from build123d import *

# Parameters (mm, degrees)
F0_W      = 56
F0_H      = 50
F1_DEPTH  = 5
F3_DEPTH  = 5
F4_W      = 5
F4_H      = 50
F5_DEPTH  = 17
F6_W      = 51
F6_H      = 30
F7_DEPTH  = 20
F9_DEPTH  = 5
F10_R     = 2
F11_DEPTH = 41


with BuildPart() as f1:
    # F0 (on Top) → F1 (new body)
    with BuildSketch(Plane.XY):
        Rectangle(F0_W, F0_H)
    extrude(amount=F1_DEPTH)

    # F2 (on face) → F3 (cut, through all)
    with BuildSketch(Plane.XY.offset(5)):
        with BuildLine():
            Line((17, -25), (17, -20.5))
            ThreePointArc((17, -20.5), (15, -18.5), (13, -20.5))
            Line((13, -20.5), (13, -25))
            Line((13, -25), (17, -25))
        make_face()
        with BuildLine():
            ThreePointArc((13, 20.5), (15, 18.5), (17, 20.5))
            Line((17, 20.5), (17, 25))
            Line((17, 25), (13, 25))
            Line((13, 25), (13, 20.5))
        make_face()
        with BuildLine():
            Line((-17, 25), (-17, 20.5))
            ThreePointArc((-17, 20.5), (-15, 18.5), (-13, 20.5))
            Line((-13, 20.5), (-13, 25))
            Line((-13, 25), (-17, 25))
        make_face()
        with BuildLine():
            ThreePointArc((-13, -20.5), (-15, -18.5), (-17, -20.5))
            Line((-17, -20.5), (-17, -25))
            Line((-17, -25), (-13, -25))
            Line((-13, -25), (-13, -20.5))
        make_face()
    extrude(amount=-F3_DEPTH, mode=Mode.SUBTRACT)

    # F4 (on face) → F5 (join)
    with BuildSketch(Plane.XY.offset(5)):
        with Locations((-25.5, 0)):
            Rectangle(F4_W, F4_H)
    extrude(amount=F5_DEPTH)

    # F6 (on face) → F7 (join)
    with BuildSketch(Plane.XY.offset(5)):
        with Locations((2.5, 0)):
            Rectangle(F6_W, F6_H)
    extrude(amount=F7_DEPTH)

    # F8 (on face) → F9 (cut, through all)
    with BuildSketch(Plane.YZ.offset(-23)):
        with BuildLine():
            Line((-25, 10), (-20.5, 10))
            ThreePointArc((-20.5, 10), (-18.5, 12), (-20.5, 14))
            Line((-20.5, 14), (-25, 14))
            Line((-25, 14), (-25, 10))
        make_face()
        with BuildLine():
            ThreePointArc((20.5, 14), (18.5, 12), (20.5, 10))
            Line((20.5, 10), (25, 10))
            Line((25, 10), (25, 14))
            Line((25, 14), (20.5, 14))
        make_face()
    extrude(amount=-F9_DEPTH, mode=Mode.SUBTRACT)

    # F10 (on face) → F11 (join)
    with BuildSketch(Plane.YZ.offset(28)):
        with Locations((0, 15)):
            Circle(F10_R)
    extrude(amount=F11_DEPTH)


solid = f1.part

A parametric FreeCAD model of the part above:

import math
import FreeCAD as App
import Part
import Sketcher
Q = App.Units.Quantity

doc = App.newDocument("Part")
body = doc.addObject("PartDesign::Body", "Body")

# Sketch on XY plane
sketch1 = body.newObject("Sketcher::SketchObject", "Sketch")
sketch1.AttachmentSupport = (doc.getObject("XY_Plane"), [""])
sketch1.MapMode = "FlatFace"
sketch1.addGeometry(Part.LineSegment(App.Vector(-28, 25, 0), App.Vector(-28, -25, 0)), False)
sketch1.addGeometry(Part.LineSegment(App.Vector(-28, -25, 0), App.Vector(28, -25, 0)), False)
sketch1.addGeometry(Part.LineSegment(App.Vector(28, -25, 0), App.Vector(28, 25, 0)), False)
sketch1.addGeometry(Part.LineSegment(App.Vector(28, 25, 0), App.Vector(-28, 25, 0)), False)
sketch1.addConstraint(Sketcher.Constraint("Coincident", 0, 2, 1, 1))
sketch1.addConstraint(Sketcher.Constraint("Coincident", 1, 2, 2, 1))
sketch1.addConstraint(Sketcher.Constraint("Coincident", 2, 2, 3, 1))
sketch1.addConstraint(Sketcher.Constraint("Coincident", 3, 2, 0, 1))
sketch1.addConstraint(Sketcher.Constraint("Vertical", 0))
sketch1.addConstraint(Sketcher.Constraint("Horizontal", 1))
sketch1.addConstraint(Sketcher.Constraint("Vertical", 2))
sketch1.addConstraint(Sketcher.Constraint("Horizontal", 3))
sketch1.addConstraint(Sketcher.Constraint("Symmetric", 0, 2, 2, 2, -1, 1))
sketch1.addConstraint(Sketcher.Constraint("DistanceX", 1, 1, 1, 2, Q("56 mm")))
sketch1.addConstraint(Sketcher.Constraint("DistanceY", 0, 2, 0, 1, Q("50 mm")))
pad1 = body.newObject("PartDesign::Pad", "Pad")
pad1.Profile = sketch1
pad1.Length = 5

# Sketch on XY plane
sketch2 = body.newObject("Sketcher::SketchObject", "Sketch001")
sketch2.AttachmentSupport = (doc.getObject("XY_Plane"), [""])
sketch2.MapMode = "FlatFace"
sketch2.AttachmentOffset = App.Placement(App.Vector(0, 0, 5), App.Rotation())
sketch2.addGeometry(Part.LineSegment(App.Vector(17, -25, 0), App.Vector(17, -20.5, 0)), False)
sketch2.addGeometry(Part.ArcOfCircle(Part.Circle(App.Vector(15, -20.5, 0), App.Vector(0, 0, 1), 2), math.radians(0), math.radians(180)), False)
sketch2.addGeometry(Part.LineSegment(App.Vector(13, -20.5, 0), App.Vector(13, -25, 0)), False)
sketch2.addGeometry(Part.LineSegment(App.Vector(13, -25, 0), App.Vector(17, -25, 0)), False)
sketch2.addGeometry(Part.ArcOfCircle(Part.Circle(App.Vector(15, 20.5, 0), App.Vector(0, 0, 1), 2), math.radians(180), math.radians(360)), False)
sketch2.addGeometry(Part.LineSegment(App.Vector(17, 20.5, 0), App.Vector(17, 25, 0)), False)
sketch2.addGeometry(Part.LineSegment(App.Vector(17, 25, 0), App.Vector(13, 25, 0)), False)
sketch2.addGeometry(Part.LineSegment(App.Vector(13, 25, 0), App.Vector(13, 20.5, 0)), False)
sketch2.addGeometry(Part.LineSegment(App.Vector(-17, 25, 0), App.Vector(-17, 20.5, 0)), False)
sketch2.addGeometry(Part.ArcOfCircle(Part.Circle(App.Vector(-15, 20.5, 0), App.Vector(0, 0, 1), 2), math.radians(180), math.radians(360)), False)
sketch2.addGeometry(Part.LineSegment(App.Vector(-13, 20.5, 0), App.Vector(-13, 25, 0)), False)
sketch2.addGeometry(Part.LineSegment(App.Vector(-13, 25, 0), App.Vector(-17, 25, 0)), False)
sketch2.addGeometry(Part.ArcOfCircle(Part.Circle(App.Vector(-15, -20.5, 0), App.Vector(0, 0, 1), 2), math.radians(0), math.radians(180)), False)
sketch2.addGeometry(Part.LineSegment(App.Vector(-17, -20.5, 0), App.Vector(-17, -25, 0)), False)
sketch2.addGeometry(Part.LineSegment(App.Vector(-17, -25, 0), App.Vector(-13, -25, 0)), False)
sketch2.addGeometry(Part.LineSegment(App.Vector(-13, -25, 0), App.Vector(-13, -20.5, 0)), False)
sketch2.addConstraint(Sketcher.Constraint("Tangent", 0, 2, 1, 1))
sketch2.addConstraint(Sketcher.Constraint("Tangent", 1, 2, 2, 1))
sketch2.addConstraint(Sketcher.Constraint("Coincident", 2, 2, 3, 1))
sketch2.addConstraint(Sketcher.Constraint("Coincident", 3, 2, 0, 1))
sketch2.addConstraint(Sketcher.Constraint("Tangent", 4, 2, 5, 1))
sketch2.addConstraint(Sketcher.Constraint("Coincident", 5, 2, 6, 1))
sketch2.addConstraint(Sketcher.Constraint("Coincident", 6, 2, 7, 1))
sketch2.addConstraint(Sketcher.Constraint("Tangent", 7, 2, 4, 1))
sketch2.addConstraint(Sketcher.Constraint("Tangent", 8, 2, 9, 1))
sketch2.addConstraint(Sketcher.Constraint("Tangent", 9, 2, 10, 1))
sketch2.addConstraint(Sketcher.Constraint("Coincident", 10, 2, 11, 1))
sketch2.addConstraint(Sketcher.Constraint("Coincident", 11, 2, 8, 1))
sketch2.addConstraint(Sketcher.Constraint("Tangent", 12, 2, 13, 1))
sketch2.addConstraint(Sketcher.Constraint("Coincident", 13, 2, 14, 1))
sketch2.addConstraint(Sketcher.Constraint("Coincident", 14, 2, 15, 1))
sketch2.addConstraint(Sketcher.Constraint("Tangent", 15, 2, 12, 1))
sketch2.addConstraint(Sketcher.Constraint("Vertical", 0))
sketch2.addConstraint(Sketcher.Constraint("Vertical", 2))
sketch2.addConstraint(Sketcher.Constraint("Horizontal", 3))
sketch2.addConstraint(Sketcher.Constraint("Vertical", 5))
sketch2.addConstraint(Sketcher.Constraint("Horizontal", 6))
sketch2.addConstraint(Sketcher.Constraint("Vertical", 7))
sketch2.addConstraint(Sketcher.Constraint("Vertical", 8))
sketch2.addConstraint(Sketcher.Constraint("Vertical", 10))
sketch2.addConstraint(Sketcher.Constraint("Horizontal", 11))
sketch2.addConstraint(Sketcher.Constraint("Vertical", 13))
sketch2.addConstraint(Sketcher.Constraint("Horizontal", 14))
sketch2.addConstraint(Sketcher.Constraint("Vertical", 15))
sketch2.addConstraint(Sketcher.Constraint("Equal", 1, 4))
sketch2.addConstraint(Sketcher.Constraint("Equal", 4, 9))
sketch2.addConstraint(Sketcher.Constraint("Equal", 9, 12))
sketch2.addConstraint(Sketcher.Constraint("Symmetric", 1, 3, 9, 3, -1, 1))
sketch2.addConstraint(Sketcher.Constraint("Symmetric", 4, 3, 12, 3, -1, 1))
sketch2.addConstraint(Sketcher.Constraint("Symmetric", 4, 3, 9, 3, -2))
sketch2.addConstraint(Sketcher.Constraint("Horizontal", 6, 2, 10, 2))
sketch2.addConstraint(Sketcher.Constraint("Horizontal", 3, 2, 13, 2))
sketch2.addConstraint(Sketcher.Constraint("Equal", 2, 5))
sketch2.addConstraint(Sketcher.Constraint("Radius", 1, Q("2 mm")))
sketch2.addConstraint(Sketcher.Constraint("DistanceY", 0, 1, 0, 2, Q("4.5 mm")))
sketch2.addConstraint(Sketcher.Constraint("DistanceX", -1, 1, 1, 3, Q("15 mm")))
sketch2.addConstraint(Sketcher.Constraint("DistanceY", 2, 2, -1, 1, Q("25 mm")))
pocket1 = body.newObject("PartDesign::Pocket", "Pocket")
pocket1.Profile = sketch2
pocket1.Type = "ThroughAll"

# Sketch on XY plane
sketch3 = body.newObject("Sketcher::SketchObject", "Sketch002")
sketch3.AttachmentSupport = (doc.getObject("XY_Plane"), [""])
sketch3.MapMode = "FlatFace"
sketch3.AttachmentOffset = App.Placement(App.Vector(0, 0, 5), App.Rotation())
sketch3.addGeometry(Part.LineSegment(App.Vector(-28, 25, 0), App.Vector(-28, -25, 0)), False)
sketch3.addGeometry(Part.LineSegment(App.Vector(-28, -25, 0), App.Vector(-23, -25, 0)), False)
sketch3.addGeometry(Part.LineSegment(App.Vector(-23, -25, 0), App.Vector(-23, 25, 0)), False)
sketch3.addGeometry(Part.LineSegment(App.Vector(-23, 25, 0), App.Vector(-28, 25, 0)), False)
sketch3.addConstraint(Sketcher.Constraint("Coincident", 0, 2, 1, 1))
sketch3.addConstraint(Sketcher.Constraint("Coincident", 1, 2, 2, 1))
sketch3.addConstraint(Sketcher.Constraint("Coincident", 2, 2, 3, 1))
sketch3.addConstraint(Sketcher.Constraint("Coincident", 3, 2, 0, 1))
sketch3.addConstraint(Sketcher.Constraint("Vertical", 0))
sketch3.addConstraint(Sketcher.Constraint("Horizontal", 1))
sketch3.addConstraint(Sketcher.Constraint("Vertical", 2))
sketch3.addConstraint(Sketcher.Constraint("Horizontal", 3))
sketch3.addConstraint(Sketcher.Constraint("DistanceX", 1, 1, 1, 2, Q("5 mm")))
sketch3.addConstraint(Sketcher.Constraint("DistanceY", 0, 2, 0, 1, Q("50 mm")))
sketch3.addConstraint(Sketcher.Constraint("DistanceX", 0, 2, -1, 1, Q("28 mm")))
sketch3.addConstraint(Sketcher.Constraint("DistanceY", 0, 2, -1, 1, Q("25 mm")))
pad2 = body.newObject("PartDesign::Pad", "Pad001")
pad2.Profile = sketch3
pad2.Length = 17

# Sketch on XY plane
sketch4 = body.newObject("Sketcher::SketchObject", "Sketch003")
sketch4.AttachmentSupport = (doc.getObject("XY_Plane"), [""])
sketch4.MapMode = "FlatFace"
sketch4.AttachmentOffset = App.Placement(App.Vector(0, 0, 5), App.Rotation())
sketch4.addGeometry(Part.LineSegment(App.Vector(-23, 15, 0), App.Vector(-23, -15, 0)), False)
sketch4.addGeometry(Part.LineSegment(App.Vector(-23, -15, 0), App.Vector(28, -15, 0)), False)
sketch4.addGeometry(Part.LineSegment(App.Vector(28, -15, 0), App.Vector(28, 15, 0)), False)
sketch4.addGeometry(Part.LineSegment(App.Vector(28, 15, 0), App.Vector(-23, 15, 0)), False)
sketch4.addConstraint(Sketcher.Constraint("Coincident", 0, 2, 1, 1))
sketch4.addConstraint(Sketcher.Constraint("Coincident", 1, 2, 2, 1))
sketch4.addConstraint(Sketcher.Constraint("Coincident", 2, 2, 3, 1))
sketch4.addConstraint(Sketcher.Constraint("Coincident", 3, 2, 0, 1))
sketch4.addConstraint(Sketcher.Constraint("Vertical", 0))
sketch4.addConstraint(Sketcher.Constraint("Horizontal", 1))
sketch4.addConstraint(Sketcher.Constraint("Vertical", 2))
sketch4.addConstraint(Sketcher.Constraint("Horizontal", 3))
sketch4.addConstraint(Sketcher.Constraint("DistanceX", 1, 1, 1, 2, Q("51 mm")))
sketch4.addConstraint(Sketcher.Constraint("DistanceY", 0, 2, 0, 1, Q("30 mm")))
sketch4.addConstraint(Sketcher.Constraint("DistanceX", 0, 2, -1, 1, Q("23 mm")))
sketch4.addConstraint(Sketcher.Constraint("DistanceY", 0, 2, -1, 1, Q("15 mm")))
pad3 = body.newObject("PartDesign::Pad", "Pad002")
pad3.Profile = sketch4
pad3.Length = 20

# Sketch on YZ plane
sketch5 = body.newObject("Sketcher::SketchObject", "Sketch004")
sketch5.AttachmentSupport = (doc.getObject("YZ_Plane"), [""])
sketch5.MapMode = "FlatFace"
sketch5.AttachmentOffset = App.Placement(App.Vector(0, 0, -23), App.Rotation())
sketch5.addGeometry(Part.LineSegment(App.Vector(-25, 10, 0), App.Vector(-20.5, 10, 0)), False)
sketch5.addGeometry(Part.ArcOfCircle(Part.Circle(App.Vector(-20.5, 12, 0), App.Vector(0, 0, 1), 2), math.radians(-90), math.radians(90)), False)
sketch5.addGeometry(Part.LineSegment(App.Vector(-20.5, 14, 0), App.Vector(-25, 14, 0)), False)
sketch5.addGeometry(Part.LineSegment(App.Vector(-25, 14, 0), App.Vector(-25, 10, 0)), False)
sketch5.addGeometry(Part.ArcOfCircle(Part.Circle(App.Vector(20.5, 12, 0), App.Vector(0, 0, 1), 2), math.radians(90), math.radians(270)), False)
sketch5.addGeometry(Part.LineSegment(App.Vector(20.5, 10, 0), App.Vector(25, 10, 0)), False)
sketch5.addGeometry(Part.LineSegment(App.Vector(25, 10, 0), App.Vector(25, 14, 0)), False)
sketch5.addGeometry(Part.LineSegment(App.Vector(25, 14, 0), App.Vector(20.5, 14, 0)), False)
sketch5.addConstraint(Sketcher.Constraint("Tangent", 0, 2, 1, 1))
sketch5.addConstraint(Sketcher.Constraint("Tangent", 1, 2, 2, 1))
sketch5.addConstraint(Sketcher.Constraint("Coincident", 2, 2, 3, 1))
sketch5.addConstraint(Sketcher.Constraint("Coincident", 3, 2, 0, 1))
sketch5.addConstraint(Sketcher.Constraint("Tangent", 4, 2, 5, 1))
sketch5.addConstraint(Sketcher.Constraint("Coincident", 5, 2, 6, 1))
sketch5.addConstraint(Sketcher.Constraint("Coincident", 6, 2, 7, 1))
sketch5.addConstraint(Sketcher.Constraint("Tangent", 7, 2, 4, 1))
sketch5.addConstraint(Sketcher.Constraint("Horizontal", 0))
sketch5.addConstraint(Sketcher.Constraint("Horizontal", 2))
sketch5.addConstraint(Sketcher.Constraint("Vertical", 3))
sketch5.addConstraint(Sketcher.Constraint("Horizontal", 5))
sketch5.addConstraint(Sketcher.Constraint("Vertical", 6))
sketch5.addConstraint(Sketcher.Constraint("Horizontal", 7))
sketch5.addConstraint(Sketcher.Constraint("Equal", 1, 4))
sketch5.addConstraint(Sketcher.Constraint("Symmetric", 1, 3, 4, 3, -2))
sketch5.addConstraint(Sketcher.Constraint("Equal", 2, 5))
sketch5.addConstraint(Sketcher.Constraint("Radius", 1, Q("2 mm")))
sketch5.addConstraint(Sketcher.Constraint("DistanceX", 0, 1, 0, 2, Q("4.5 mm")))
sketch5.addConstraint(Sketcher.Constraint("DistanceY", -1, 1, 1, 3, Q("12 mm")))
sketch5.addConstraint(Sketcher.Constraint("DistanceX", 2, 2, -1, 1, Q("25 mm")))
pocket2 = body.newObject("PartDesign::Pocket", "Pocket001")
pocket2.Profile = sketch5
pocket2.Type = "ThroughAll"

# Sketch on YZ plane
sketch6 = body.newObject("Sketcher::SketchObject", "Sketch005")
sketch6.AttachmentSupport = (doc.getObject("YZ_Plane"), [""])
sketch6.MapMode = "FlatFace"
sketch6.AttachmentOffset = App.Placement(App.Vector(0, 0, 28), App.Rotation())
sketch6.addGeometry(Part.Circle(App.Vector(0, 15, 0), App.Vector(0, 0, 1), 2), False)
sketch6.addConstraint(Sketcher.Constraint("PointOnObject", 0, 3, -2))
sketch6.addConstraint(Sketcher.Constraint("Diameter", 0, Q("4 mm")))
sketch6.addConstraint(Sketcher.Constraint("DistanceY", -1, 1, 0, 3, Q("15 mm")))
pad4 = body.newObject("PartDesign::Pad", "Pad003")
pad4.Profile = sketch6
pad4.Length = 41

doc.recompute()
